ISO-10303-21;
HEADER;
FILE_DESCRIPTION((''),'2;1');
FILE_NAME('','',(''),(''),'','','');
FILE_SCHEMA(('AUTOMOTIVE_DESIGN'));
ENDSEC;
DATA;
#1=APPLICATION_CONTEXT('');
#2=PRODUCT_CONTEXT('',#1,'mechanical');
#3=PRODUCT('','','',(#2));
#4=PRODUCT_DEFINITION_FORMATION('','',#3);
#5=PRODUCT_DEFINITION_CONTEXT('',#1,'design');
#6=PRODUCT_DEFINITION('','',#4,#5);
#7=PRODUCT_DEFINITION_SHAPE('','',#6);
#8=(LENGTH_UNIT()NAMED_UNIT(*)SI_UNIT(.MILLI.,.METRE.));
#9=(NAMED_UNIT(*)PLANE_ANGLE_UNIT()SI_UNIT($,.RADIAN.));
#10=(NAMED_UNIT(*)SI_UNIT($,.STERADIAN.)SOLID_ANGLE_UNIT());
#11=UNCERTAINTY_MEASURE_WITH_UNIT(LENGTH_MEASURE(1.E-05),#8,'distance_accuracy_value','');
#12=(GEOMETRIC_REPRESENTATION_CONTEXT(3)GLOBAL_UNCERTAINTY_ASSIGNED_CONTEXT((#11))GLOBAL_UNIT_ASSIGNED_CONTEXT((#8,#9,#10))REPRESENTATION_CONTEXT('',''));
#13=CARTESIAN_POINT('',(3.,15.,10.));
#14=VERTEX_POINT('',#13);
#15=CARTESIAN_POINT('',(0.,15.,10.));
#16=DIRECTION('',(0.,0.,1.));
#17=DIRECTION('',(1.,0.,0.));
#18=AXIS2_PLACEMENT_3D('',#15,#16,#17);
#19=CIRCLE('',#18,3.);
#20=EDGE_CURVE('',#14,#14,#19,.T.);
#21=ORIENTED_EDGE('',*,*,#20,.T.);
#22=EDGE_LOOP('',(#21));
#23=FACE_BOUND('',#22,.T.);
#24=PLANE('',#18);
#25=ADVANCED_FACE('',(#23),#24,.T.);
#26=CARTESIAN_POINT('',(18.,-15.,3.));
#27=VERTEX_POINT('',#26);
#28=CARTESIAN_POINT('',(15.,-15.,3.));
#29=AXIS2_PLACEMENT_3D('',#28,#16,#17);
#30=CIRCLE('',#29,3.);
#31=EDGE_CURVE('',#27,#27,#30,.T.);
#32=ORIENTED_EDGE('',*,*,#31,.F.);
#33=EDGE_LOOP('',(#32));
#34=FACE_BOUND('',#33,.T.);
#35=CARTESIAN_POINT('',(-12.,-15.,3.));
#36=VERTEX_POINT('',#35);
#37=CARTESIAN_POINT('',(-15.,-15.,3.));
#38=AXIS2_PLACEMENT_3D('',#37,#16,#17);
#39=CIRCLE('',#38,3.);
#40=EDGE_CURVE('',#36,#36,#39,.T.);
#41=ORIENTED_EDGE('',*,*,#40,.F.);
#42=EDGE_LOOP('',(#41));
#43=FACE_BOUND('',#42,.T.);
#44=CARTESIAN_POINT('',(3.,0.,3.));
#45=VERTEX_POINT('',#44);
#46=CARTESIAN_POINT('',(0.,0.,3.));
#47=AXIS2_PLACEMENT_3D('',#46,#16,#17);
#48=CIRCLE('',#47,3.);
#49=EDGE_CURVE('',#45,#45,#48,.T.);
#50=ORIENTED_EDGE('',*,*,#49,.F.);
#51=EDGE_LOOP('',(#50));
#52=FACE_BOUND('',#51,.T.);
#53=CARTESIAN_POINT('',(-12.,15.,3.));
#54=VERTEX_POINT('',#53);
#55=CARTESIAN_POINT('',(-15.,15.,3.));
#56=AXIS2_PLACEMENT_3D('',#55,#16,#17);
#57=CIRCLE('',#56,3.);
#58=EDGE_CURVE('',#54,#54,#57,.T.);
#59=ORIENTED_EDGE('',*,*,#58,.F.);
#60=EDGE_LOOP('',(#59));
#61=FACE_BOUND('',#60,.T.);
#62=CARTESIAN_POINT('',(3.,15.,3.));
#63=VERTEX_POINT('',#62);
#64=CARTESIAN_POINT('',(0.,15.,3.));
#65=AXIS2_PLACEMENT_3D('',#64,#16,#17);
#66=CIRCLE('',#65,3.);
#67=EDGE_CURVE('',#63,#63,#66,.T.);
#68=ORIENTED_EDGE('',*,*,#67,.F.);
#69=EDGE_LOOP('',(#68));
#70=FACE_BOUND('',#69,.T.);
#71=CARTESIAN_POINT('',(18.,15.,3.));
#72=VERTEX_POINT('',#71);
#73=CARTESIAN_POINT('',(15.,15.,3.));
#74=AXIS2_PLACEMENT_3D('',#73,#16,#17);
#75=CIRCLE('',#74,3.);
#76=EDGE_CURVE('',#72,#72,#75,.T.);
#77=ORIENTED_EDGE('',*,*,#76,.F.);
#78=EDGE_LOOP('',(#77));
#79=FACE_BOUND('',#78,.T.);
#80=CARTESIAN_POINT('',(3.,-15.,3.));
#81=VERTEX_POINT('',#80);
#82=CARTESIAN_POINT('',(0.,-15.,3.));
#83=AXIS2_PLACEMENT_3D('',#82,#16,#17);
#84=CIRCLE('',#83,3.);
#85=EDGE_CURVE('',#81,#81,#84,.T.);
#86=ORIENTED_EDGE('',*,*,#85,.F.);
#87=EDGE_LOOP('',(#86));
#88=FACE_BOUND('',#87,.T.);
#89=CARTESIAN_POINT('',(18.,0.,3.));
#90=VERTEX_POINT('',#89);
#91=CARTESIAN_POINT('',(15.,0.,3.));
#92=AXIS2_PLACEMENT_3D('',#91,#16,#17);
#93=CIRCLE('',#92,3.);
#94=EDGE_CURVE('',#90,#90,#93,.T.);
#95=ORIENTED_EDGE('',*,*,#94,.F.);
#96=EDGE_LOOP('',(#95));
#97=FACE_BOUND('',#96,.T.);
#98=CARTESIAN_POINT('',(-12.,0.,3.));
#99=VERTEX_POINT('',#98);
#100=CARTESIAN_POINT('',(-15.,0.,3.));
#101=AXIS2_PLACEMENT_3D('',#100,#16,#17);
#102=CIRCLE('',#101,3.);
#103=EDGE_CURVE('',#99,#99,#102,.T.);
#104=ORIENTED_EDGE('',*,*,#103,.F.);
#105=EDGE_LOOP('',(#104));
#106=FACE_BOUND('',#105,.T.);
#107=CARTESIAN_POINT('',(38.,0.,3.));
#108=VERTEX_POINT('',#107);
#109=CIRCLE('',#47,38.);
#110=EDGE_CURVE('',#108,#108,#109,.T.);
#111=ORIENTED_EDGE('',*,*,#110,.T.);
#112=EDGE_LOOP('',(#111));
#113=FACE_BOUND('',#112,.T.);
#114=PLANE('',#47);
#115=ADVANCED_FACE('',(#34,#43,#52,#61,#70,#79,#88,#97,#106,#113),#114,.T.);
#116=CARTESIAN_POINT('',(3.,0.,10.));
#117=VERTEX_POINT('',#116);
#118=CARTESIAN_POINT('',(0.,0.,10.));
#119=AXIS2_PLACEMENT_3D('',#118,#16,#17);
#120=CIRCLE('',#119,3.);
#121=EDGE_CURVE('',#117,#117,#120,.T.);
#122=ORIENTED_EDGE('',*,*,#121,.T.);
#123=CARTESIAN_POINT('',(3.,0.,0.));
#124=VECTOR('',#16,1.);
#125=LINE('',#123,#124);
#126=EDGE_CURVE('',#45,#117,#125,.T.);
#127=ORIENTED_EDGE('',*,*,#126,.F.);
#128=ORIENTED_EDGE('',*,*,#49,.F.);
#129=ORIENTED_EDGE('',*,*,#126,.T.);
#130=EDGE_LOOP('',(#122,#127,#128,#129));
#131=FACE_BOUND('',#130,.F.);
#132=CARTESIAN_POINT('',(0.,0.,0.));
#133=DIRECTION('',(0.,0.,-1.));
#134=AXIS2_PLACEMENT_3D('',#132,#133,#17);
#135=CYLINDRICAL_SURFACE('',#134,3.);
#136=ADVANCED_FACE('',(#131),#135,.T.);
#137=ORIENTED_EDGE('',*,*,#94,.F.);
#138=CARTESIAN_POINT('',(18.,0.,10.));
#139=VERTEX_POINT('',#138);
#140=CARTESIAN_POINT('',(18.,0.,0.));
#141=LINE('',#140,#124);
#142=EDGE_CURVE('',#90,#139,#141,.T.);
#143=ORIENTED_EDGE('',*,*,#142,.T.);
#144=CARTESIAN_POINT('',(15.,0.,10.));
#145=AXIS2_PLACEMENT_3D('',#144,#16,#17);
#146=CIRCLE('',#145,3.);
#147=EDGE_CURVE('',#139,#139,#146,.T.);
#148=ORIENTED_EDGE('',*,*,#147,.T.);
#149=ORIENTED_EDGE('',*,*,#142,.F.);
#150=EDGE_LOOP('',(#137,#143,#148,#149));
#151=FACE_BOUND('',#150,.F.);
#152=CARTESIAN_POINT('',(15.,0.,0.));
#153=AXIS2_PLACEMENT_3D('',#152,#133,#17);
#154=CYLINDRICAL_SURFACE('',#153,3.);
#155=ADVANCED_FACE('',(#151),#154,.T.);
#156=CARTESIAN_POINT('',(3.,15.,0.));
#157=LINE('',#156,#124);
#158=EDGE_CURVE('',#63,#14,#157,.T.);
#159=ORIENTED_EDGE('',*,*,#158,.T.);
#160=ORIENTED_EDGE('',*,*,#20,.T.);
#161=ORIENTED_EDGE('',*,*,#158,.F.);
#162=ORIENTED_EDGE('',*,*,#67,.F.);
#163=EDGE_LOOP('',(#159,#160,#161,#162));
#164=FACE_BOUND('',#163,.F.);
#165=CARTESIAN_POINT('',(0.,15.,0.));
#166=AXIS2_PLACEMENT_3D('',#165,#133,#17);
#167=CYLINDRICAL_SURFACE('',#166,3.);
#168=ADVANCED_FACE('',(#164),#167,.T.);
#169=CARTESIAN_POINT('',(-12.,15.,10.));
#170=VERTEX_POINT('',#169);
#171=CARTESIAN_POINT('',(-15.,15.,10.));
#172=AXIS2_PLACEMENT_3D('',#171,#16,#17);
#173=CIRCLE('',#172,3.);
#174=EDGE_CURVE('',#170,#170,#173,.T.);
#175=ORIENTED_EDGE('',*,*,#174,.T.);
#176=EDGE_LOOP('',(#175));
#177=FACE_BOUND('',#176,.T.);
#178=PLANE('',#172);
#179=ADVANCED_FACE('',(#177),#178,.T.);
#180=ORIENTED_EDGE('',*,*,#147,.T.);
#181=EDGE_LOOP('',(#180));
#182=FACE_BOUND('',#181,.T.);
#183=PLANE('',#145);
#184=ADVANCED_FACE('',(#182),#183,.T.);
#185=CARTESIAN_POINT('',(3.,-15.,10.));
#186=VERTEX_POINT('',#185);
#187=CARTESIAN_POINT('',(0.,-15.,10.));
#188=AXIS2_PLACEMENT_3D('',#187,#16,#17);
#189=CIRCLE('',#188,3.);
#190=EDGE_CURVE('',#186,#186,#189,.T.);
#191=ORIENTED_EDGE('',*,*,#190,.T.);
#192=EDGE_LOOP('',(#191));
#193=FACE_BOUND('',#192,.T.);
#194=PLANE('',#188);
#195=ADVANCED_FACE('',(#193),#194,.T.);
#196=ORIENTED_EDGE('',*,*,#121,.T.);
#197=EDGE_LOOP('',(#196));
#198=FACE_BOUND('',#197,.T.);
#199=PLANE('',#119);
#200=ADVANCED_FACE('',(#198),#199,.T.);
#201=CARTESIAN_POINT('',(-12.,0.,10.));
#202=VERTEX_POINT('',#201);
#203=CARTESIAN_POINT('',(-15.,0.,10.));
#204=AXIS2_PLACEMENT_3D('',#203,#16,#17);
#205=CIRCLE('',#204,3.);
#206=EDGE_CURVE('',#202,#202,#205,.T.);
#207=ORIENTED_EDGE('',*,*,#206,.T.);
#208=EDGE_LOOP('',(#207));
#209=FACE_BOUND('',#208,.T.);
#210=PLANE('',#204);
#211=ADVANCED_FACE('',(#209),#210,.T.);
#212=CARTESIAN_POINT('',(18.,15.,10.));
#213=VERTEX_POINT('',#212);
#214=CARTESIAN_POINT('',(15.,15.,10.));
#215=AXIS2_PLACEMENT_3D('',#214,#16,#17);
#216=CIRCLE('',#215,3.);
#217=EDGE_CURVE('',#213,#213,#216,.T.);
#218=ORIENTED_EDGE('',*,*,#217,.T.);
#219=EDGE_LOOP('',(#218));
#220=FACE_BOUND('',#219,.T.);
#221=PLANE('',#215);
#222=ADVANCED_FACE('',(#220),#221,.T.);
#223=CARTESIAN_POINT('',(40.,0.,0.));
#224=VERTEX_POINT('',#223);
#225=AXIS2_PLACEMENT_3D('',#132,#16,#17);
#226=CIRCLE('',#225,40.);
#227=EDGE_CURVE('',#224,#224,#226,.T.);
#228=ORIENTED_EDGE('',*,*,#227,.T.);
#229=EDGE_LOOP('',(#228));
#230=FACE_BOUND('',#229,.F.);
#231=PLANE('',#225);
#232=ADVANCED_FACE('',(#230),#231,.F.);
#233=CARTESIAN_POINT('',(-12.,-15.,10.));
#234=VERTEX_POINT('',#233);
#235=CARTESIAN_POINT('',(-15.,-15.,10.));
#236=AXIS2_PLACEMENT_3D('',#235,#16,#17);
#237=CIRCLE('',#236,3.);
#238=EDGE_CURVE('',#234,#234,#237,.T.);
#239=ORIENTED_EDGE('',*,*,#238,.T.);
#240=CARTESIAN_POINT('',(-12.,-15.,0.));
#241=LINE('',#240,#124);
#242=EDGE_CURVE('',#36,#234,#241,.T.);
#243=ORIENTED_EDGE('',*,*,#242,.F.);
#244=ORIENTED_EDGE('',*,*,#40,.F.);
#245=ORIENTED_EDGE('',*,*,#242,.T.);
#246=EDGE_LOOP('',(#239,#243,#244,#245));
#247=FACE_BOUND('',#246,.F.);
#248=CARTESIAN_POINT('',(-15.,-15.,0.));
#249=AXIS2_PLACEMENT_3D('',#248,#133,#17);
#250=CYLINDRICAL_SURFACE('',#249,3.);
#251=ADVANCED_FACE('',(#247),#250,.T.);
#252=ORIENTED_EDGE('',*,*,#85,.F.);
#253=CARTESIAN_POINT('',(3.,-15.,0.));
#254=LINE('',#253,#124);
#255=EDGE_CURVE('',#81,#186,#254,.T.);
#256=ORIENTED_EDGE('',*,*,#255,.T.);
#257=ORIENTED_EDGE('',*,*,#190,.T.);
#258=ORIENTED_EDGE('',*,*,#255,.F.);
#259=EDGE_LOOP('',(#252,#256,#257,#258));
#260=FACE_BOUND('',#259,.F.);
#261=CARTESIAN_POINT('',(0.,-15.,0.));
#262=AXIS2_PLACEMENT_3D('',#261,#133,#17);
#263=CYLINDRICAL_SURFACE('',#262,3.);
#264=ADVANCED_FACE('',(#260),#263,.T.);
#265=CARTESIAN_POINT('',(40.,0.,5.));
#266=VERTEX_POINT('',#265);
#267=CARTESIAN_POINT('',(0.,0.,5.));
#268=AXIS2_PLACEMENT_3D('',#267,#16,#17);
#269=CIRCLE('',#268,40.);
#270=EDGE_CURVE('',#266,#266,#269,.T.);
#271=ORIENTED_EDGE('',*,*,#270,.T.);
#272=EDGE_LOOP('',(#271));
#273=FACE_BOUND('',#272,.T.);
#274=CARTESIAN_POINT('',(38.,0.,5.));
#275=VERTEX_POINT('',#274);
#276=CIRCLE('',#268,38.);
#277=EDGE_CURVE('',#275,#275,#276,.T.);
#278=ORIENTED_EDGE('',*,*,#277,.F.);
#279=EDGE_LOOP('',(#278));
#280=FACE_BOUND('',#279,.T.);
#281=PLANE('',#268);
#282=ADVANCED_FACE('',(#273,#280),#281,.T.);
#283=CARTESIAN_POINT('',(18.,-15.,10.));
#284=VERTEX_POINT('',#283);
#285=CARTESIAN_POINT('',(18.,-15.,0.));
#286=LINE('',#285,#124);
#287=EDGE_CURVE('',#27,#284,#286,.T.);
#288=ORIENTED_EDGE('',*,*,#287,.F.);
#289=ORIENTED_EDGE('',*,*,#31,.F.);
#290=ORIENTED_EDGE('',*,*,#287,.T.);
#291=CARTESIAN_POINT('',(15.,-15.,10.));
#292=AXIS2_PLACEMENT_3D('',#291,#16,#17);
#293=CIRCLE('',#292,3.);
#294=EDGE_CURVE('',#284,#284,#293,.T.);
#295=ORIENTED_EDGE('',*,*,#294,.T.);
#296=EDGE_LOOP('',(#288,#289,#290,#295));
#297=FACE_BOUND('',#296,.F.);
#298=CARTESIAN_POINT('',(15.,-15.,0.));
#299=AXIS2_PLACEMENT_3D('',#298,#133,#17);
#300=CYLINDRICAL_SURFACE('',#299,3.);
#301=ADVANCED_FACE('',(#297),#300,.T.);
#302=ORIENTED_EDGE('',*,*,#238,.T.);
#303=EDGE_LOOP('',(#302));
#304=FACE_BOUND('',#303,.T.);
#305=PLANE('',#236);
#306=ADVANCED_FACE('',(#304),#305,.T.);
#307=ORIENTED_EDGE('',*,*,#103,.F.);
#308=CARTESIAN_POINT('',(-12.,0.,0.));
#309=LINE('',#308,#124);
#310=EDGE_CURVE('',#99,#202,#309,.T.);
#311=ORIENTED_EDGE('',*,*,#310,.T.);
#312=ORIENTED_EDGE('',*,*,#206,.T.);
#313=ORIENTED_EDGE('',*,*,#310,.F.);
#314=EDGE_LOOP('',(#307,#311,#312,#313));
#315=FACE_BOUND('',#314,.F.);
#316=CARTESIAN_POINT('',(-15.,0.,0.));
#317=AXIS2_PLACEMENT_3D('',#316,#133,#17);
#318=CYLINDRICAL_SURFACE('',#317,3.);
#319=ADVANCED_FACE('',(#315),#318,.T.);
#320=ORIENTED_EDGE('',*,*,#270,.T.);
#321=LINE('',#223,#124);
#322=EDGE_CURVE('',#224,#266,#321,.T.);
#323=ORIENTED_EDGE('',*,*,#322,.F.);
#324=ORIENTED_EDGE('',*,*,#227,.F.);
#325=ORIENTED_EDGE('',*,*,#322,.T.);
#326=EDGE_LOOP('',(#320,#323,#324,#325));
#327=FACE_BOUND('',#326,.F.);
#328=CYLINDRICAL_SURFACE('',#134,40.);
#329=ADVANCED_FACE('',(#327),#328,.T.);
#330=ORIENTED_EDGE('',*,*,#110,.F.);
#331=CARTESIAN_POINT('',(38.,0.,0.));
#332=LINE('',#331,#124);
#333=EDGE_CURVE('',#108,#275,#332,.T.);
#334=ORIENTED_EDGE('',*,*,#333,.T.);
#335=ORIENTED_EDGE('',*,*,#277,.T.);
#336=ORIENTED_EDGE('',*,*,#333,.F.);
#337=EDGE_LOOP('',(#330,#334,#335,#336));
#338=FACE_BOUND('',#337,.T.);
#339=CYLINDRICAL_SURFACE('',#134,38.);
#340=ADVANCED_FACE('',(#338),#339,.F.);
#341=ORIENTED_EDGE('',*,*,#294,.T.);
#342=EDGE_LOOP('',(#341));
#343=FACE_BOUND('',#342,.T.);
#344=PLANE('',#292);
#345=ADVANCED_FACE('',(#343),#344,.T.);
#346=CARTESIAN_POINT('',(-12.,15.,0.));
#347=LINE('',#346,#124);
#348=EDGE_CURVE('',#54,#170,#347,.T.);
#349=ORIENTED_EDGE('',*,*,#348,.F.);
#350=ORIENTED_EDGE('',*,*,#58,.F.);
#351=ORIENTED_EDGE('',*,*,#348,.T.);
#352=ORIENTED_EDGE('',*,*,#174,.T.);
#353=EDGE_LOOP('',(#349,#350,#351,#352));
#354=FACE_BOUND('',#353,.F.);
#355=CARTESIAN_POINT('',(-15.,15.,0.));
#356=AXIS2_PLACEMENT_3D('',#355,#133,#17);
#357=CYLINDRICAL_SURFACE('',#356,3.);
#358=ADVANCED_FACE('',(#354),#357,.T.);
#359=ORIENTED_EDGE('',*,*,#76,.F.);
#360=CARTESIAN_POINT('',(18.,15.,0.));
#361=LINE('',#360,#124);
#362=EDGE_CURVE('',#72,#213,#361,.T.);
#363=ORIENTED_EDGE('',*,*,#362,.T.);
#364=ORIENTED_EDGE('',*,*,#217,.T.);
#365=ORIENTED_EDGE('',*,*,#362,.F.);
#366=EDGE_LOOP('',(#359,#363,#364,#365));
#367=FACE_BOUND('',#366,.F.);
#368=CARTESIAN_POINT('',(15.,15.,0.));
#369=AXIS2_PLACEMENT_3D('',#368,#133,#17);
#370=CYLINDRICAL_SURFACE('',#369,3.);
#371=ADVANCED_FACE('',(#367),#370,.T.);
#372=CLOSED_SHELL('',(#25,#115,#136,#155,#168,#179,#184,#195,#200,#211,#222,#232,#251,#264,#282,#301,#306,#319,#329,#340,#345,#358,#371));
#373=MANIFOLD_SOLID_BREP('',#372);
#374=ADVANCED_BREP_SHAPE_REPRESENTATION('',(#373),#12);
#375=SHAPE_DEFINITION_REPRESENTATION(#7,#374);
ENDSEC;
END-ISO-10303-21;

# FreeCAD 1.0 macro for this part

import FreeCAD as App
import Part
import Sketcher
Q = App.Units.Quantity

doc = App.newDocument("Part")
body = doc.addObject("PartDesign::Body", "Body")

sketch1 = body.newObject("Sketcher::SketchObject", "Sketch")
sketch1.AttachmentSupport = (doc.getObject("XY_Plane"), [""])
sketch1.MapMode = "FlatFace"
sketch1.addGeometry([
    Part.Circle(App.Vector(0, 0, 0), App.Vector(0, 0, 1), 38),
    Part.Circle(App.Vector(-15, -15, 0), App.Vector(0, 0, 1), 3),
    Part.Circle(App.Vector(0, -15, 0), App.Vector(0, 0, 1), 3),
    Part.Circle(App.Vector(15, -15, 0), App.Vector(0, 0, 1), 3),
    Part.Circle(App.Vector(-15, 0, 0), App.Vector(0, 0, 1), 3),
    Part.Circle(App.Vector(-15, 15, 0), App.Vector(0, 0, 1), 3),
    Part.Circle(App.Vector(0, 0, 0), App.Vector(0, 0, 1), 3),
    Part.Circle(App.Vector(15, 0, 0), App.Vector(0, 0, 1), 3),
    Part.Circle(App.Vector(0, 15, 0), App.Vector(0, 0, 1), 3),
    Part.Circle(App.Vector(15, 15, 0), App.Vector(0, 0, 1), 3),
], False)
sketch1.addConstraint([
    Sketcher.Constraint("Coincident", 0, 3, -1, 1),
    Sketcher.Constraint("Coincident", 6, 3, -1, 1),
    Sketcher.Constraint("Equal", 1, 2),
    Sketcher.Constraint("Equal", 2, 3),
    Sketcher.Constraint("Equal", 3, 4),
    Sketcher.Constraint("Equal", 4, 5),
    Sketcher.Constraint("Equal", 5, 6),
    Sketcher.Constraint("Equal", 6, 7),
    Sketcher.Constraint("Equal", 7, 8),
    Sketcher.Constraint("Equal", 8, 9),
    Sketcher.Constraint("Symmetric", 3, 3, 5, 3, -1, 1),
    Sketcher.Constraint("Symmetric", 4, 3, 7, 3, -1, 1),
    Sketcher.Constraint("Symmetric", 2, 3, 8, 3, -1, 1),
    Sketcher.Constraint("Symmetric", 1, 3, 9, 3, -1, 1),
    Sketcher.Constraint("Symmetric", 1, 3, 3, 3, -2),
    Sketcher.Constraint("PointOnObject", 2, 3, -2),
    Sketcher.Constraint("PointOnObject", 4, 3, -1),
    Sketcher.Constraint("Horizontal", 1, 3, 2, 3),
    Sketcher.Constraint("Vertical", 1, 3, 4, 3),
    Sketcher.Constraint("Diameter", 0, Q("76 mm")),
    Sketcher.Constraint("Diameter", 1, Q("6 mm")),
    Sketcher.Constraint("DistanceX", 1, 3, -1, 1, Q("15 mm")),
    Sketcher.Constraint("DistanceY", 1, 3, -1, 1, Q("15 mm")),
])
pad1 = body.newObject("PartDesign::Pad", "Pad")
pad1.Profile = sketch1
pad1.Length = 3

sketch2 = body.newObject("Sketcher::SketchObject", "Sketch001")
sketch2.AttachmentSupport = (doc.getObject("XY_Plane"), [""])
sketch2.MapMode = "FlatFace"
sketch2.addGeometry([
    Part.Circle(App.Vector(0, 15, 0), App.Vector(0, 0, 1), 3),
    Part.Circle(App.Vector(-15, 0, 0), App.Vector(0, 0, 1), 3),
    Part.Circle(App.Vector(0, -15, 0), App.Vector(0, 0, 1), 3),
    Part.Circle(App.Vector(15, 0, 0), App.Vector(0, 0, 1), 3),
    Part.Circle(App.Vector(-15, 15, 0), App.Vector(0, 0, 1), 3),
    Part.Circle(App.Vector(15, 15, 0), App.Vector(0, 0, 1), 3),
    Part.Circle(App.Vector(15, -15, 0), App.Vector(0, 0, 1), 3),
    Part.Circle(App.Vector(0, 0, 0), App.Vector(0, 0, 1), 3),
    Part.Circle(App.Vector(-15, -15, 0), App.Vector(0, 0, 1), 3),
], False)
sketch2.addConstraint([
    Sketcher.Constraint("Coincident", 7, 3, -1, 1),
    Sketcher.Constraint("Equal", 0, 1),
    Sketcher.Constraint("Equal", 1, 2),
    Sketcher.Constraint("Equal", 2, 3),
    Sketcher.Constraint("Equal", 3, 4),
    Sketcher.Constraint("Equal", 4, 5),
    Sketcher.Constraint("Equal", 5, 6),
    Sketcher.Constraint("Equal", 6, 7),
    Sketcher.Constraint("Equal", 7, 8),
    Sketcher.Constraint("Symmetric", 0, 3, 2, 3, -1, 1),
    Sketcher.Constraint("Symmetric", 1, 3, 3, 3, -1, 1),
    Sketcher.Constraint("Symmetric", 4, 3, 6, 3, -1, 1),
    Sketcher.Constraint("Symmetric", 5, 3, 8, 3, -1, 1),
    Sketcher.Constraint("Symmetric", 4, 3, 5, 3, -2),
    Sketcher.Constraint("PointOnObject", 0, 3, -2),
    Sketcher.Constraint("PointOnObject", 1, 3, -1),
    Sketcher.Constraint("Horizontal", 0, 3, 4, 3),
    Sketcher.Constraint("Vertical", 1, 3, 4, 3),
    Sketcher.Constraint("Diameter", 0, Q("6 mm")),
    Sketcher.Constraint("DistanceY", -1, 1, 0, 3, Q("15 mm")),
    Sketcher.Constraint("DistanceX", 1, 3, -1, 1, Q("15 mm")),
])
pad2 = body.newObject("PartDesign::Pad", "Pad001")
pad2.Profile = sketch2
pad2.Length = 10

sketch3 = body.newObject("Sketcher::SketchObject", "Sketch002")
sketch3.AttachmentSupport = (doc.getObject("XY_Plane"), [""])
sketch3.MapMode = "FlatFace"
sketch3.addGeometry([
    Part.Circle(App.Vector(0, 0, 0), App.Vector(0, 0, 1), 40),
    Part.Circle(App.Vector(0, 0, 0), App.Vector(0, 0, 1), 38),
], False)
sketch3.addConstraint([
    Sketcher.Constraint("Coincident", 0, 3, -1, 1),
    Sketcher.Constraint("Coincident", 1, 3, -1, 1),
    Sketcher.Constraint("Diameter", 0, Q("80 mm")),
    Sketcher.Constraint("Diameter", 1, Q("76 mm")),
])
pad3 = body.newObject("PartDesign::Pad", "Pad002")
pad3.Profile = sketch3
pad3.Length = 5

doc.recompute()
